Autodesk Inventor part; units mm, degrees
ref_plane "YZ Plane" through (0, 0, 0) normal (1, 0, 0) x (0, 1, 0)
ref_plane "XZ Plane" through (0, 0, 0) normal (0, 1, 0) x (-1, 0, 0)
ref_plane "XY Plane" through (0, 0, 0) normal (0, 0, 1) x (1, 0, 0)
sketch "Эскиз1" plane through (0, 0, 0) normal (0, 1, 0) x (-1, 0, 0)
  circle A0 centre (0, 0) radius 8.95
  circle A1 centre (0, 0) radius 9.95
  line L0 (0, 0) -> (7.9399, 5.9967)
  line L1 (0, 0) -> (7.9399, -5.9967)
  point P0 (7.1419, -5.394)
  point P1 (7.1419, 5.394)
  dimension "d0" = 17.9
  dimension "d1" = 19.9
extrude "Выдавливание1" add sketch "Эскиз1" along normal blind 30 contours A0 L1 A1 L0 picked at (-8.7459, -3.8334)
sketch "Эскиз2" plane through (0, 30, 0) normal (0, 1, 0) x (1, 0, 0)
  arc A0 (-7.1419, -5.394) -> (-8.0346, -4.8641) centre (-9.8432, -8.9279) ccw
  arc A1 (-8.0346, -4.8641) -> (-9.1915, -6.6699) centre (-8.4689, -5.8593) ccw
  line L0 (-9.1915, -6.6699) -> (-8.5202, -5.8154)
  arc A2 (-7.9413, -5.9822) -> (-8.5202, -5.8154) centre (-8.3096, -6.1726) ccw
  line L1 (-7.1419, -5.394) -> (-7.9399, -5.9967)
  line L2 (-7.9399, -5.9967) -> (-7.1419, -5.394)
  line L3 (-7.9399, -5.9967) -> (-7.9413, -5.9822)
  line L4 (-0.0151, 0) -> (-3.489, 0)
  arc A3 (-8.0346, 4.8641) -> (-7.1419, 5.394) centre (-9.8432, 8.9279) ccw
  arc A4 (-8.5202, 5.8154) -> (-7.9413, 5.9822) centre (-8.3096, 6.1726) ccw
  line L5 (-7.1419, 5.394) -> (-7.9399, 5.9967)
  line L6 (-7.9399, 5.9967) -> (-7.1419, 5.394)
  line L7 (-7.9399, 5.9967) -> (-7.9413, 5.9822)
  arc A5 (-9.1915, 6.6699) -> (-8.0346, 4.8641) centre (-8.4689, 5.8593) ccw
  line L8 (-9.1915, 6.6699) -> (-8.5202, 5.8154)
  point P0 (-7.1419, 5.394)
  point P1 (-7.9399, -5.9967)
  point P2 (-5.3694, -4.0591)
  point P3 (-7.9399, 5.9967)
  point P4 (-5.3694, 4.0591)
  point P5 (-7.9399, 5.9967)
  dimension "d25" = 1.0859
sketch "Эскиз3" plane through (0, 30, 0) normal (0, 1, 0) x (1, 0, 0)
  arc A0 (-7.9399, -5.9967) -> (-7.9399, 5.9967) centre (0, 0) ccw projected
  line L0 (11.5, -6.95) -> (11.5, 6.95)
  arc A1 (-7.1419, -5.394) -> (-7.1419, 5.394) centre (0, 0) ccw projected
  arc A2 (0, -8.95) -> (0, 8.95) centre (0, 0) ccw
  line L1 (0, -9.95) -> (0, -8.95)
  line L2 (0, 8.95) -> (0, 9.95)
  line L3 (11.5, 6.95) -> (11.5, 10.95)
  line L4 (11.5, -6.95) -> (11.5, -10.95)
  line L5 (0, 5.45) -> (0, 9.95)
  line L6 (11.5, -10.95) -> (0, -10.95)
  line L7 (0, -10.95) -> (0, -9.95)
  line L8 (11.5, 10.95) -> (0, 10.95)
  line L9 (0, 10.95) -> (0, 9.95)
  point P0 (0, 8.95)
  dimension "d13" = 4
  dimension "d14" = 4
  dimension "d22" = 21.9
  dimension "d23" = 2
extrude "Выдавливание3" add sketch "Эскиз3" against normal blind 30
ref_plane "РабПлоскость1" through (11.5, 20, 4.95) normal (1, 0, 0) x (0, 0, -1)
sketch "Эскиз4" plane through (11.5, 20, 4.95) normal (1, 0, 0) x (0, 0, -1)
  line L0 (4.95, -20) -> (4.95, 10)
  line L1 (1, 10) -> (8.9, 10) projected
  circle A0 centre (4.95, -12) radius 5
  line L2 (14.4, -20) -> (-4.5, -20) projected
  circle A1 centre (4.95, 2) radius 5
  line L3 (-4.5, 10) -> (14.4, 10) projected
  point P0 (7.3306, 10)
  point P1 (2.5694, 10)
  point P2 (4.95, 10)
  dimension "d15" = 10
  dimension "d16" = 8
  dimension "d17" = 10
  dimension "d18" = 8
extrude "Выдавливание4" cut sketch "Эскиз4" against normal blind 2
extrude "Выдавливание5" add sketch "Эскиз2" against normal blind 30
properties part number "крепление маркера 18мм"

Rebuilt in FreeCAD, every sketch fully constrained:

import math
import FreeCAD as App
import Part
import Sketcher
from FreeCAD import Vector
Q = App.Units.Quantity

doc = App.newDocument("Part")
body = doc.addObject("PartDesign::Body", "Body")

# Sketch on XZ plane
sketch1 = body.newObject("Sketcher::SketchObject", "Sketch")
sketch1.AttachmentSupport = (doc.getObject("XZ_Plane"), [""])
sketch1.MapMode = "FlatFace"
sketch1.addGeometry([
    Part.ArcOfCircle(Part.Circle(Vector(0, 0, 0), Vector(0, 0, 1), 8.9), math.radians(-143), math.radians(143)),
    Part.LineSegment(Vector(-7.1, 5.4, 0), Vector(-7.9, 6, 0)),
    Part.ArcOfCircle(Part.Circle(Vector(0, 0, 0), Vector(0, 0, 1), 9.9), math.radians(-143), math.radians(143)),
    Part.LineSegment(Vector(-7.9, -6, 0), Vector(-7.1, -5.4, 0)),
], False)
sketch1.addConstraint([
    Sketcher.Constraint("Coincident", 0, 2, 1, 1),
    Sketcher.Constraint("Coincident", 1, 2, 2, 2),
    Sketcher.Constraint("Coincident", 2, 1, 3, 1),
    Sketcher.Constraint("Coincident", 3, 2, 0, 1),
    Sketcher.Constraint("Coincident", 0, 3, -1, 1),
    Sketcher.Constraint("Coincident", 2, 3, -1, 1),
    Sketcher.Constraint("Vertical", 1, 2, 2, 1),
    Sketcher.Constraint("Vertical", 0, 2, 3, 2),
    Sketcher.Constraint("Radius", 0, Q("8.95 mm")),
    Sketcher.Constraint("Radius", 2, Q("9.95 mm")),
    Sketcher.Constraint("DistanceX", 1, 2, -1, 1, Q("7.94 mm")),
    Sketcher.Constraint("DistanceX", 0, 2, -1, 1, Q("7.142 mm")),
])
pad1 = body.newObject("PartDesign::Pad", "Pad")
pad1.Profile = sketch1
pad1.Length = 30
pad1.Reversed = True

# Sketch on XZ plane
sketch2 = body.newObject("Sketcher::SketchObject", "Sketch001")
sketch2.AttachmentSupport = (doc.getObject("XZ_Plane"), [""])
sketch2.MapMode = "FlatFace"
sketch2.AttachmentOffset = App.Placement(Vector(0, 0, -30), App.Rotation())
sketch2.addGeometry([
    Part.LineSegment(Vector(0, 8.9, 0), Vector(0, 10.9, 0)),  # 0
    Part.LineSegment(Vector(0, 10.9, 0), Vector(11.5, 10.9, 0)),  # 1
    Part.LineSegment(Vector(11.5, 10.9, 0), Vector(11.5, -10.9, 0)),  # 2
    Part.LineSegment(Vector(11.5, -10.9, 0), Vector(0, -10.9, 0)),  # 3
    Part.LineSegment(Vector(0, -10.9, 0), Vector(0, -8.9, 0)),  # 4
    Part.ArcOfCircle(Part.Circle(Vector(0, 0, 0), Vector(0, 0, 1), 8.9), math.radians(-90), math.radians(90)),  # 5
], False)
sketch2.addConstraint([
    Sketcher.Constraint("Coincident", 0, 2, 1, 1),
    Sketcher.Constraint("Coincident", 1, 2, 2, 1),
    Sketcher.Constraint("Coincident", 2, 2, 3, 1),
    Sketcher.Constraint("Coincident", 3, 2, 4, 1),
    Sketcher.Constraint("Coincident", 4, 2, 5, 1),
    Sketcher.Constraint("Coincident", 5, 2, 0, 1),
    Sketcher.Constraint("Vertical", 0),
    Sketcher.Constraint("Horizontal", 1),
    Sketcher.Constraint("Vertical", 2),
    Sketcher.Constraint("Horizontal", 3),
    Sketcher.Constraint("Vertical", 4),
    Sketcher.Constraint("Coincident", 5, 3, -1, 1),
    Sketcher.Constraint("Symmetric", 0, 2, 3, 2, -1, 1),
    Sketcher.Constraint("PointOnObject", 0, 2, -2),
    Sketcher.Constraint("DistanceY", 0, 1, 0, 2, Q("2 mm")),
    Sketcher.Constraint("DistanceY", 2, 2, 2, 1, Q("21.9 mm")),
    Sketcher.Constraint("DistanceX", 1, 1, 1, 2, Q("11.5 mm")),
])
pad2 = body.newObject("PartDesign::Pad", "Pad001")
pad2.Profile = sketch2
pad2.Length = 30

# Sketch on YZ plane
sketch3 = body.newObject("Sketcher::SketchObject", "Sketch002")
sketch3.AttachmentSupport = (doc.getObject("YZ_Plane"), [""])
sketch3.MapMode = "FlatFace"
sketch3.AttachmentOffset = App.Placement(Vector(0, 0, 11.5), App.Rotation())
sketch3.addGeometry([
    Part.Circle(Vector(8, 0, 0), Vector(0, 0, 1), 5),
    Part.Circle(Vector(22, 0, 0), Vector(0, 0, 1), 5),
], False)
sketch3.addConstraint([
    Sketcher.Constraint("Equal", 0, 1),
    Sketcher.Constraint("PointOnObject", 0, 3, -1),
    Sketcher.Constraint("PointOnObject", 1, 3, -1),
    Sketcher.Constraint("Diameter", 0, Q("10 mm")),
    Sketcher.Constraint("DistanceX", -1, 1, 0, 3, Q("8 mm")),
    Sketcher.Constraint("DistanceX", -1, 1, 1, 3, Q("22 mm")),
])
pocket1 = body.newObject("PartDesign::Pocket", "Pocket")
pocket1.Profile = sketch3
pocket1.Length = 2

# Sketch on XZ plane
sketch4 = body.newObject("Sketcher::SketchObject", "Sketch003")
sketch4.AttachmentSupport = (doc.getObject("XZ_Plane"), [""])
sketch4.MapMode = "FlatFace"
sketch4.AttachmentOffset = App.Placement(Vector(0, 0, -30), App.Rotation())
sketch4.addGeometry([
    Part.LineSegment(Vector(-7.94, 5.997, 0), Vector(-7.142, 5.394, 0)),  # 0
    Part.ArcOfCircle(Part.Circle(Vector(-9.843, 8.928, 0), Vector(0, 0, 1), 4.448), math.radians(-66.01), math.radians(-52.61)),  # 1
    Part.ArcOfCircle(Part.Circle(Vector(-8.469, 5.859, 0), Vector(0, 0, 1), 1.086), math.radians(132), math.radians(294)),  # 2
    Part.LineSegment(Vector(-9.191, 6.67, 0), Vector(-8.52, 5.815, 0)),  # 3
    Part.ArcOfCircle(Part.Circle(Vector(-8.31, 6.173, 0), Vector(0, 0, 1), 0.415), math.radians(-121), math.radians(-27)),  # 4
    Part.LineSegment(Vector(-7.941, 5.982, 0), Vector(-7.94, 5.997, 0)),  # 5
    Part.ArcOfCircle(Part.Circle(Vector(-8.469, -5.859, 0), Vector(0, 0, 1), 1.086), math.radians(66), math.radians(228)),  # 6
    Part.ArcOfCircle(Part.Circle(Vector(-9.843, -8.928, 0), Vector(0, 0, 1), 4.448), math.radians(52.61), math.radians(66.01)),  # 7
    Part.LineSegment(Vector(-7.142, -5.394, 0), Vector(-7.94, -5.997, 0)),  # 8
    Part.LineSegment(Vector(-7.94, -5.997, 0), Vector(-7.941, -5.982, 0)),  # 9
    Part.ArcOfCircle(Part.Circle(Vector(-8.31, -6.173, 0), Vector(0, 0, 1), 0.415), math.radians(27), math.radians(121)),  # 10
    Part.LineSegment(Vector(-8.52, -5.815, 0), Vector(-9.191, -6.67, 0)),  # 11
], False)
sketch4.addConstraint([
    Sketcher.Constraint("Coincident", 0, 2, 1, 2),
    Sketcher.Constraint("Coincident", 1, 1, 2, 2),
    Sketcher.Constraint("Coincident", 2, 1, 3, 1),
    Sketcher.Constraint("Coincident", 3, 2, 4, 1),
    Sketcher.Constraint("Coincident", 4, 2, 5, 1),
    Sketcher.Constraint("Coincident", 5, 2, 0, 1),
    Sketcher.Constraint("Coincident", 6, 1, 7, 2),
    Sketcher.Constraint("Coincident", 7, 1, 8, 1),
    Sketcher.Constraint("Coincident", 8, 2, 9, 1),
    Sketcher.Constraint("Coincident", 9, 2, 10, 1),
    Sketcher.Constraint("Coincident", 10, 2, 11, 1),
    Sketcher.Constraint("Coincident", 11, 2, 6, 2),
    Sketcher.Constraint("Equal", 2, 6),
    Sketcher.Constraint("Equal", 1, 7),
    Sketcher.Constraint("Equal", 4, 10),
    Sketcher.Constraint("Symmetric", 2, 3, 6, 3, -1),
    Sketcher.Constraint("Symmetric", 1, 3, 7, 3, -1),
    Sketcher.Constraint("Symmetric", 4, 3, 10, 3, -1),
    Sketcher.Constraint("Symmetric", 5, 2, 8, 2, -1),
    Sketcher.Constraint("Vertical", 0, 2, 7, 1),
    Sketcher.Constraint("Vertical", 4, 2, 9, 2),
    Sketcher.Constraint("Vertical", 3, 2, 10, 2),
    Sketcher.Constraint("Vertical", 2, 1, 11, 2),
    Sketcher.Constraint("Radius", 6, Q("1.086 mm")),
    Sketcher.Constraint("Distance", 0, Q("1 mm")),
    Sketcher.Constraint("Radius", 1, Q("4.448 mm")),
    Sketcher.Constraint("Radius", 4, Q("0.4146 mm")),
    Sketcher.Constraint("DistanceX", 5, 2, -1, 1, Q("7.94 mm")),
    Sketcher.Constraint("DistanceY", 11, 2, -1, 1, Q("6.67 mm")),
    Sketcher.Constraint("DistanceY", 1, 1, 0, 2, Q("0.53 mm")),
    Sketcher.Constraint("DistanceY", -1, 1, 1, 3, Q("8.928 mm")),
    Sketcher.Constraint("DistanceX", 2, 3, -1, 1, Q("8.469 mm")),
    Sketcher.Constraint("DistanceX", 0, 2, -1, 1, Q("7.142 mm")),
    Sketcher.Constraint("DistanceY", -1, 1, 0, 2, Q("5.394 mm")),
    Sketcher.Constraint("DistanceY", 6, 3, 4, 3, Q("12.032 mm")),
    Sketcher.Constraint("DistanceX", 4, 3, 1, 1, Q("0.275 mm")),
    Sketcher.Constraint("DistanceY", 3, 2, 2, 3, Q("0.044 mm")),
    Sketcher.Constraint("DistanceY", 2, 3, 4, 2, Q("0.123 mm")),
])
pad3 = body.newObject("PartDesign::Pad", "Pad002")
pad3.Profile = sketch4
pad3.Length = 30

doc.recompute()
